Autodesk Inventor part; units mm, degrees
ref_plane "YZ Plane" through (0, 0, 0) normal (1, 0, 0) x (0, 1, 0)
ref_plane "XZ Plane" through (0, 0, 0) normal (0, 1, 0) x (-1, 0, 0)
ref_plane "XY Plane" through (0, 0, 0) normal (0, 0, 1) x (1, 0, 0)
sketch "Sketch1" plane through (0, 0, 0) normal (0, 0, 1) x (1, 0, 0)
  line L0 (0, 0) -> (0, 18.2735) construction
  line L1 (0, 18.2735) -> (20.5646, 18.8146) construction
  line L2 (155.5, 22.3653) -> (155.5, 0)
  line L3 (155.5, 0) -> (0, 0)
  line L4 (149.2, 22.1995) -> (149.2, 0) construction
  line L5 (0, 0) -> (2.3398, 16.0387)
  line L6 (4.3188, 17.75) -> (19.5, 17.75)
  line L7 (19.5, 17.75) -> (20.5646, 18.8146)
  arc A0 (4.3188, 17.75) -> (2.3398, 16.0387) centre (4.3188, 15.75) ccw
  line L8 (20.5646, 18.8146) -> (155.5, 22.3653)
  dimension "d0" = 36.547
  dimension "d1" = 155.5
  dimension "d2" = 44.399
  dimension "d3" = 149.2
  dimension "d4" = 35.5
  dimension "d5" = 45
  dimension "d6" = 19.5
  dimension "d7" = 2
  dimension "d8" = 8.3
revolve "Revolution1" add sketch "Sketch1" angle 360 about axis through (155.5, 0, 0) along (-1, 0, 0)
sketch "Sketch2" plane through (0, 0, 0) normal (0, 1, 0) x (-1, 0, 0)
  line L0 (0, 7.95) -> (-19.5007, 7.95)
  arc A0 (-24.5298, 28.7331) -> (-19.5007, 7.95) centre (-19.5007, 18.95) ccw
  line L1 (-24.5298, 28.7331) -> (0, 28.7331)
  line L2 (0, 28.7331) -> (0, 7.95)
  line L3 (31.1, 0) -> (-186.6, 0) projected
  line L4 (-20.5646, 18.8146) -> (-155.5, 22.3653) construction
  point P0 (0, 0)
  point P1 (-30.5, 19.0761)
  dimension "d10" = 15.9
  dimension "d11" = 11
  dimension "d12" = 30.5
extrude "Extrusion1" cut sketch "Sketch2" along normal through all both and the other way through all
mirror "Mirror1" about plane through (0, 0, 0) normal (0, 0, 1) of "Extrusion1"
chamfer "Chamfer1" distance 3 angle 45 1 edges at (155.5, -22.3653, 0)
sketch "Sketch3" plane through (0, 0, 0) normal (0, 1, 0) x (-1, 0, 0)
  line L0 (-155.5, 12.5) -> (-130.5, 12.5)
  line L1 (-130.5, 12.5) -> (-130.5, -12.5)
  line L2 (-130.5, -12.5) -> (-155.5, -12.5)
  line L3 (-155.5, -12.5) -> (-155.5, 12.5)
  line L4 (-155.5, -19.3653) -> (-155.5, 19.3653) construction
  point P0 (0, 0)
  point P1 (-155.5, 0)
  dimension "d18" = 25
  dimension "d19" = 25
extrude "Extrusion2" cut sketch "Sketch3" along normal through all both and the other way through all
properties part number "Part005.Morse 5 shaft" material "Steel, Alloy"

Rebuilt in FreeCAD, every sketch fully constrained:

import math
import FreeCAD as App
import Part
import Sketcher
Q = App.Units.Quantity


def edges_at(feature, points):
    """Names of the edges that pass closest to the given points."""
    edges = feature.Shape.Edges
    near = lambda p: min(range(len(edges)), key=lambda i: edges[i].distToShape(Part.Vertex(*p))[0])
    return sorted({f"Edge{near(p) + 1}" for p in points})


def add_polygon(sketch, points):
    """Adds a closed chain of lines whose ends are joined by coincident constraints."""
    first, n = sketch.GeometryCount, len(points)
    for a, b in zip(points, points[1:] + points[:1]):
        sketch.addGeometry(Part.LineSegment(App.Vector(*a, 0), App.Vector(*b, 0)), False)
    for i in range(n):
        sketch.addConstraint(Sketcher.Constraint("Coincident", first + i, 2, first + (i + 1) % n, 1))

doc = App.newDocument("Part")
params = doc.addObject("Spreadsheet::Sheet", "Params")
for row, (alias, value) in enumerate([
    ("sketch1_radius", "2 mm"),
    ("sketch1_width", "155.5 mm"),
    ("revolution_angle", "360 deg"),
    ("sketch2_radius", "11 mm"),
    ("chamfer_size", "3 mm"),
    ("sketch3_width", "25 mm"),
], start=1):
    params.set(f"A{row}", alias)
    params.set(f"B{row}", "=" + value)
    params.setAlias(f"B{row}", alias)

body = doc.addObject("PartDesign::Body", "Body")

# Sketch on XY plane
sketch1 = body.newObject("Sketcher::SketchObject", "Sketch")
sketch1.AttachmentSupport = (doc.getObject("XY_Plane"), [""])
sketch1.MapMode = "FlatFace"
sketch1.addGeometry(Part.LineSegment(App.Vector(155.5, 0, 0), App.Vector(155.5, 22.4, 0)), False)
sketch1.addGeometry(Part.LineSegment(App.Vector(155.5, 22.4, 0), App.Vector(20.6, 18.8, 0)), False)
sketch1.addGeometry(Part.LineSegment(App.Vector(20.6, 18.8, 0), App.Vector(19.5, 17.8, 0)), False)
sketch1.addGeometry(Part.LineSegment(App.Vector(19.5, 17.8, 0), App.Vector(4.3, 17.8, 0)), False)
sketch1.addGeometry(Part.ArcOfCircle(Part.Circle(App.Vector(4.3, 15.8, 0), App.Vector(0, 0, 1), 2), math.radians(90), math.radians(172)), False)
sketch1.addGeometry(Part.LineSegment(App.Vector(2.3, 16, 0), App.Vector(0, 0, 0)), False)
sketch1.addGeometry(Part.LineSegment(App.Vector(0, 0, 0), App.Vector(155.5, 0, 0)), False)
sketch1.addConstraint(Sketcher.Constraint("Coincident", 0, 2, 1, 1))
sketch1.addConstraint(Sketcher.Constraint("Coincident", 1, 2, 2, 1))
sketch1.addConstraint(Sketcher.Constraint("Coincident", 2, 2, 3, 1))
sketch1.addConstraint(Sketcher.Constraint("Tangent", 3, 2, 4, 1))
sketch1.addConstraint(Sketcher.Constraint("Tangent", 4, 2, 5, 1))
sketch1.addConstraint(Sketcher.Constraint("Coincident", 5, 2, 6, 1))
sketch1.addConstraint(Sketcher.Constraint("Coincident", 6, 2, 0, 1))
sketch1.addConstraint(Sketcher.Constraint("Vertical", 0))
sketch1.addConstraint(Sketcher.Constraint("Horizontal", 3))
sketch1.addConstraint(Sketcher.Constraint("Horizontal", 6))
sketch1.addConstraint(Sketcher.Constraint("Coincident", 5, 2, -1, 1))
sketch1.addConstraint(Sketcher.Constraint("Radius", 4, 2.0))
sketch1.addConstraint(Sketcher.Constraint("DistanceX", 6, 1, 6, 2, 155.5))
sketch1.addConstraint(Sketcher.Constraint("DistanceX", -1, 1, 2, 2, 19.5))
sketch1.addConstraint(Sketcher.Constraint("Angle", 2, Q("-135 deg")))
sketch1.addConstraint(Sketcher.Constraint("Angle", 5, Q("-98.3 deg")))
sketch1.addConstraint(Sketcher.Constraint("DistanceY", -1, 1, 4, 3, 15.75))
sketch1.addConstraint(Sketcher.Constraint("Distance", 1, 134.982))
sketch1.addConstraint(Sketcher.Constraint("DistanceY", 0, 1, 0, 2, 22.3653))
sketch1.setExpression("Constraints[11]", "Params.sketch1_radius")
sketch1.setExpression("Constraints[12]", "Params.sketch1_width")
revolution = body.newObject("PartDesign::Revolution", "Revolution")
revolution.Profile = sketch1
revolution.ReferenceAxis = (sketch1, ["H_Axis"])
revolution.setExpression("Angle", "Params.revolution_angle")

# Sketch on XZ plane
sketch2 = body.newObject("Sketcher::SketchObject", "Sketch001")
sketch2.AttachmentSupport = (doc.getObject("XZ_Plane"), [""])
sketch2.MapMode = "FlatFace"
sketch2.addGeometry(Part.LineSegment(App.Vector(20, 8, 0), App.Vector(0, 8, 0)), False)
sketch2.addGeometry(Part.LineSegment(App.Vector(0, 8, 0), App.Vector(0, 29, 0)), False)
sketch2.addGeometry(Part.LineSegment(App.Vector(0, 29, 0), App.Vector(25, 29, 0)), False)
sketch2.addGeometry(Part.ArcOfCircle(Part.Circle(App.Vector(20, 19, 0), App.Vector(0, 0, 1), 11), math.radians(-90), math.radians(63)), False)
sketch2.addConstraint(Sketcher.Constraint("Coincident", 0, 2, 1, 1))
sketch2.addConstraint(Sketcher.Constraint("Coincident", 1, 2, 2, 1))
sketch2.addConstraint(Sketcher.Constraint("Coincident", 2, 2, 3, 2))
sketch2.addConstraint(Sketcher.Constraint("Tangent", 3, 1, 0, 1))
sketch2.addConstraint(Sketcher.Constraint("Horizontal", 0))
sketch2.addConstraint(Sketcher.Constraint("Vertical", 1))
sketch2.addConstraint(Sketcher.Constraint("Horizontal", 2))
sketch2.addConstraint(Sketcher.Constraint("PointOnObject", 0, 2, -2))
sketch2.addConstraint(Sketcher.Constraint("Radius", 3, 11.0))
sketch2.addConstraint(Sketcher.Constraint("DistanceY", 1, 1, 1, 2, 20.783))
sketch2.addConstraint(Sketcher.Constraint("DistanceY", -1, 1, 3, 3, 18.95))
sketch2.addConstraint(Sketcher.Constraint("DistanceX", 0, 2, 0, 1, 19.5007))
sketch2.setExpression("Constraints[8]", "Params.sketch2_radius")
pocket1 = body.newObject("PartDesign::Pocket", "Pocket")
pocket1.Profile = sketch2
pocket1.Type = "ThroughAll"
pocket1.Midplane = True
doc.recompute()

mirrored = body.newObject("PartDesign::Mirrored", "Mirrored")
mirrored.Originals = [pocket1]
mirrored.MirrorPlane = (doc.getObject("XY_Plane"), [""])
body.Tip = mirrored
doc.recompute()

chamfer = body.newObject("PartDesign::Chamfer", "Chamfer")
chamfer.Base = (mirrored, edges_at(mirrored, [(155.5, -22.365, 0)]))
chamfer.setExpression("Size", "Params.chamfer_size")

# Sketch on XZ plane
sketch3 = body.newObject("Sketcher::SketchObject", "Sketch002")
sketch3.AttachmentSupport = (doc.getObject("XZ_Plane"), [""])
sketch3.MapMode = "FlatFace"
add_polygon(sketch3, [(130, 12), (156, 12), (156, -12), (130, -12)])  # lines 0-3
sketch3.addConstraint(Sketcher.Constraint("Horizontal", 0))
sketch3.addConstraint(Sketcher.Constraint("Vertical", 1))
sketch3.addConstraint(Sketcher.Constraint("Horizontal", 2))
sketch3.addConstraint(Sketcher.Constraint("Vertical", 3))
sketch3.addConstraint(Sketcher.Constraint("Equal", 2, 1))
sketch3.addConstraint(Sketcher.Constraint("DistanceX", 0, 1, 0, 2, 25.0))
sketch3.addConstraint(Sketcher.Constraint("DistanceX", -1, 1, 0, 2, 155.5))
sketch3.addConstraint(Sketcher.Constraint("DistanceY", -1, 1, 0, 2, 12.5))
sketch3.setExpression("Constraints[9]", "Params.sketch3_width")
pocket2 = body.newObject("PartDesign::Pocket", "Pocket001")
pocket2.Profile = sketch3
pocket2.Type = "ThroughAll"
pocket2.Midplane = True

doc.recompute()
